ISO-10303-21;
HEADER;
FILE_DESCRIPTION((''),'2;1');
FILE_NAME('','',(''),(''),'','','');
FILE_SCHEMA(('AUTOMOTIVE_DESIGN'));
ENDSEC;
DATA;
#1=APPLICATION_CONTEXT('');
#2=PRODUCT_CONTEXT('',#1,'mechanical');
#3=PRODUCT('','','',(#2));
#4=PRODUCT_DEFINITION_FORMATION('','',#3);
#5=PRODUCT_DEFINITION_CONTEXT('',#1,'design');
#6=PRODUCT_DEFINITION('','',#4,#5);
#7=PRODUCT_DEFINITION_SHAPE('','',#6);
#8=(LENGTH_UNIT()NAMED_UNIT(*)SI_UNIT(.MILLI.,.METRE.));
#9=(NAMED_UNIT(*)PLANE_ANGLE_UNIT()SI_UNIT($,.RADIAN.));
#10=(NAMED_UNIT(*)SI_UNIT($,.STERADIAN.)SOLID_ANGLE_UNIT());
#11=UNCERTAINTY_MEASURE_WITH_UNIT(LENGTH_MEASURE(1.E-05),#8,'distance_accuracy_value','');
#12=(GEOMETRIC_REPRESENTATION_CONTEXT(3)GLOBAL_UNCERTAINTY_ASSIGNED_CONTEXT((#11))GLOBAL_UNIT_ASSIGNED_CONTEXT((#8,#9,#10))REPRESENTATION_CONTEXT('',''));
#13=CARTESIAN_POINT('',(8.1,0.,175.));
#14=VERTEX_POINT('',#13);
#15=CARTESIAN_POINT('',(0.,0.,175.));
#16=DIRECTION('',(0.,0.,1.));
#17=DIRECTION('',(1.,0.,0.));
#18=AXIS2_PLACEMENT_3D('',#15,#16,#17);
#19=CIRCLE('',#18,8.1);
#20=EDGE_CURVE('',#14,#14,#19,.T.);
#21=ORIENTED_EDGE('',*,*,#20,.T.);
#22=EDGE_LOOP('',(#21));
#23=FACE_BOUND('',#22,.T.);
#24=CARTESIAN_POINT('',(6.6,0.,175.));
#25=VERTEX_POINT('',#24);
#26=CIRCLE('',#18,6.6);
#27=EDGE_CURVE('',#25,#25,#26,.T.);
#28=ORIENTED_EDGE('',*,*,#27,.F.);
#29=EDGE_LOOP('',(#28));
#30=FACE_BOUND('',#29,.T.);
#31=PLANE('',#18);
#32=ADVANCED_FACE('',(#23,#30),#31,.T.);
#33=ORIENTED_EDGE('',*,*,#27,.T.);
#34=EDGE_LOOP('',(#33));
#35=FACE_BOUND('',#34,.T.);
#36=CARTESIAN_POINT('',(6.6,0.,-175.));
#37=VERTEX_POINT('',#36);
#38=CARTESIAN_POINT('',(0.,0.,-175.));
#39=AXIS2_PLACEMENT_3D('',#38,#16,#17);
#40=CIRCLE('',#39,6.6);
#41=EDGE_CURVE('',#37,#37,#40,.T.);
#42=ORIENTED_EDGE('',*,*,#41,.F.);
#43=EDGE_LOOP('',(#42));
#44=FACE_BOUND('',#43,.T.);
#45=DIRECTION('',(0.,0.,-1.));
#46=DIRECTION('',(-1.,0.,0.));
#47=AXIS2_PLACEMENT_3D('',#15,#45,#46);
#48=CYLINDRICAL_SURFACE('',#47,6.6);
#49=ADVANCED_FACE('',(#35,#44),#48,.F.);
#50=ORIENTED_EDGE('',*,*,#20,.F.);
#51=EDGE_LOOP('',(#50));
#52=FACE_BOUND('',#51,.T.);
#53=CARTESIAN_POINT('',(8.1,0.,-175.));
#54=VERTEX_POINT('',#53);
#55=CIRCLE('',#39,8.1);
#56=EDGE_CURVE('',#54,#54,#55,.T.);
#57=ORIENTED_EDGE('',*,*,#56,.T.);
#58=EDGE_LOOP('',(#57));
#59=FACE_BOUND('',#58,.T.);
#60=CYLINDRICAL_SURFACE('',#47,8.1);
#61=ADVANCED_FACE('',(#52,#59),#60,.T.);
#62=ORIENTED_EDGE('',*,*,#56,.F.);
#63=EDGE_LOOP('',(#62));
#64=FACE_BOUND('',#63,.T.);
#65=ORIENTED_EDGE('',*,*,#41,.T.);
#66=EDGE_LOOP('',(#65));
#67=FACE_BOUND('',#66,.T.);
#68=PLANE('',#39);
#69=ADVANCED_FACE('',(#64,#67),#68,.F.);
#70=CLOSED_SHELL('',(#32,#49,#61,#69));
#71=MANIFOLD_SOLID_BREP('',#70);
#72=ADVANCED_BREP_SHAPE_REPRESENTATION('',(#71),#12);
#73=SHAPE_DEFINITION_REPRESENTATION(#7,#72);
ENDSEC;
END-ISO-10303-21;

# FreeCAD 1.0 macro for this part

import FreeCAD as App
import Part
import Sketcher
Q = App.Units.Quantity

doc = App.newDocument("Part")
body = doc.addObject("PartDesign::Body", "Body")

# Sketch on XY plane
sketch1 = doc.addObject("Sketcher::SketchObject", "Sketch")
body.addObject(sketch1)
sketch1.AttachmentSupport = (doc.XY_Plane, [""])
sketch1.MapMode = "FlatFace"
sketch1.addGeometry(Part.Circle(App.Vector(0, 0, 0), App.Vector(0, 0, 1), 8), False)
sketch1.addGeometry(Part.Circle(App.Vector(0, 0, 0), App.Vector(0, 0, 1), 7), False)
sketch1.addConstraint(Sketcher.Constraint("Coincident", 0, 3, -1, 1))
sketch1.addConstraint(Sketcher.Constraint("Coincident", 1, 3, -1, 1))
sketch1.addConstraint(Sketcher.Constraint("Diameter", 0, Q("16.2 mm")))
sketch1.addConstraint(Sketcher.Constraint("Diameter", 1, Q("13.2 mm")))
pad1 = doc.addObject("PartDesign::Pad", "Pad")
body.addObject(pad1)
pad1.Profile = sketch1
pad1.Length = 350
pad1.Midplane = True

doc.recompute()
